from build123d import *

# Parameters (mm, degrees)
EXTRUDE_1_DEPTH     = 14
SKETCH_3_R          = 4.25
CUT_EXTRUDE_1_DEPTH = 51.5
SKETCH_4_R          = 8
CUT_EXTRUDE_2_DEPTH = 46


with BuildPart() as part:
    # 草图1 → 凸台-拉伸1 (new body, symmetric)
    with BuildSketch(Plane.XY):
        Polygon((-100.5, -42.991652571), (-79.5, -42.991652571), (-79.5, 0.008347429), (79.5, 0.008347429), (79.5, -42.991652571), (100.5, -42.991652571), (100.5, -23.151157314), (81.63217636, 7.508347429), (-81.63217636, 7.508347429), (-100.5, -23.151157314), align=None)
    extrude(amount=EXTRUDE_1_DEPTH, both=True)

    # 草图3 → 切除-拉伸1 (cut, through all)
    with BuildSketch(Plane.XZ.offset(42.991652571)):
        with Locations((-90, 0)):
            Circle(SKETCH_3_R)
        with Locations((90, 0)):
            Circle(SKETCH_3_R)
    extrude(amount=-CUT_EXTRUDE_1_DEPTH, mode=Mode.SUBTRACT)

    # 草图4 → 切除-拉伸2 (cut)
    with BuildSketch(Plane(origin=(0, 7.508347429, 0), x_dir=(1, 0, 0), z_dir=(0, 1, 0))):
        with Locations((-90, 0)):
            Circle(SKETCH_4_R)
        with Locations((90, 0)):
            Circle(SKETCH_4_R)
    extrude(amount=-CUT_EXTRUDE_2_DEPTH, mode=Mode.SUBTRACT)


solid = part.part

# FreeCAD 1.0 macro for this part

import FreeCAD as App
import Part
import Sketcher
from FreeCAD import Vector
Q = App.Units.Quantity

doc = App.newDocument("Part")
params = doc.addObject("Spreadsheet::Sheet", "Params")
for row, (alias, value) in enumerate([
    ("sketch1_width", "21 mm"),
    ("sketch1_width2", "159 mm"),
    ("sketch1_height", "43 mm"),
    ("sketch1_length", "36 mm"),
    ("pad1_length", "28 mm"),
    ("sketch2_diameter", "8.5 mm"),
    ("sketch3_diameter", "16 mm"),
    ("pocket2_length", "46 mm"),
], start=1):
    params.set(f"A{row}", alias)
    params.set(f"B{row}", "=" + value)
    params.setAlias(f"B{row}", alias)

body = doc.addObject("PartDesign::Body", "Body")

# Sketch on XY plane
sketch1 = body.newObject("Sketcher::SketchObject", "Sketch")
sketch1.AttachmentSupport = (doc.getObject("XY_Plane"), [""])
sketch1.MapMode = "FlatFace"
sketch1.addGeometry([
    Part.LineSegment(Vector(-100.5, -42.991653, 0), Vector(-79.5, -42.991653, 0)),  # 0
    Part.LineSegment(Vector(-79.5, -42.991653, 0), Vector(-79.5, 0.008347, 0)),  # 1
    Part.LineSegment(Vector(-79.5, 0.008347, 0), Vector(79.5, 0.008347, 0)),  # 2
    Part.LineSegment(Vector(79.5, 0.008347, 0), Vector(79.5, -42.991653, 0)),  # 3
    Part.LineSegment(Vector(79.5, -42.991653, 0), Vector(100.5, -42.991653, 0)),  # 4
    Part.LineSegment(Vector(100.5, -42.991653, 0), Vector(100.5, -23.151157, 0)),  # 5
    Part.LineSegment(Vector(100.5, -23.151157, 0), Vector(81.632176, 7.508347, 0)),  # 6
    Part.LineSegment(Vector(81.632176, 7.508347, 0), Vector(-81.632176, 7.508347, 0)),  # 7
    Part.LineSegment(Vector(-81.632176, 7.508347, 0), Vector(-100.5, -23.151157, 0)),  # 8
    Part.LineSegment(Vector(-100.5, -23.151157, 0), Vector(-100.5, -42.991653, 0)),  # 9
], False)
sketch1.addConstraint([
    Sketcher.Constraint("Coincident", 0, 2, 1, 1),
    Sketcher.Constraint("Coincident", 1, 2, 2, 1),
    Sketcher.Constraint("Coincident", 2, 2, 3, 1),
    Sketcher.Constraint("Coincident", 3, 2, 4, 1),
    Sketcher.Constraint("Coincident", 4, 2, 5, 1),
    Sketcher.Constraint("Coincident", 5, 2, 6, 1),
    Sketcher.Constraint("Coincident", 6, 2, 7, 1),
    Sketcher.Constraint("Coincident", 7, 2, 8, 1),
    Sketcher.Constraint("Coincident", 8, 2, 9, 1),
    Sketcher.Constraint("Coincident", 9, 2, 0, 1),
    Sketcher.Constraint("Horizontal", 0),
    Sketcher.Constraint("Vertical", 1),
    Sketcher.Constraint("Horizontal", 2),
    Sketcher.Constraint("Vertical", 3),
    Sketcher.Constraint("Horizontal", 4),
    Sketcher.Constraint("Vertical", 5),
    Sketcher.Constraint("Horizontal", 7),
    Sketcher.Constraint("Vertical", 9),
    Sketcher.Constraint("Symmetric", 0, 2, 3, 2, -2),
    Sketcher.Constraint("Symmetric", 5, 2, 8, 2, -2),
    Sketcher.Constraint("Equal", 6, 8),
    Sketcher.Constraint("DistanceX", 0, 1, 0, 2, Q("21 mm")),
    Sketcher.Constraint("DistanceX", 2, 1, 2, 2, Q("159 mm")),
    Sketcher.Constraint("DistanceY", 1, 1, 1, 2, Q("43 mm")),
    Sketcher.Constraint("Distance", 6, Q("36 mm")),
    Sketcher.Constraint("DistanceY", 2, 2, 6, 2, Q("7.5 mm")),
    Sketcher.Constraint("DistanceX", 7, 2, 7, 1, Q("163.264353 mm")),
    Sketcher.Constraint("DistanceY", 0, 2, -1, 1, Q("42.991653 mm")),
])
sketch1.setExpression("Constraints[21]", "Params.sketch1_width")
sketch1.setExpression("Constraints[22]", "Params.sketch1_width2")
sketch1.setExpression("Constraints[23]", "Params.sketch1_height")
sketch1.setExpression("Constraints[24]", "Params.sketch1_length")
pad1 = body.newObject("PartDesign::Pad", "Pad")
pad1.Profile = sketch1
pad1.setExpression("Length", "Params.pad1_length")
pad1.Midplane = True

# Sketch on XZ plane
sketch2 = body.newObject("Sketcher::SketchObject", "Sketch001")
sketch2.AttachmentSupport = (doc.getObject("XZ_Plane"), [""])
sketch2.MapMode = "FlatFace"
sketch2.AttachmentOffset = App.Placement(Vector(0, 0, 42.991653), App.Rotation())
sketch2.addGeometry([
    Part.Circle(Vector(-90, 0, 0), Vector(0, 0, 1), 4.25),
    Part.Circle(Vector(90, 0, 0), Vector(0, 0, 1), 4.25),
], False)
sketch2.addConstraint([
    Sketcher.Constraint("Equal", 0, 1),
    Sketcher.Constraint("Symmetric", 0, 3, 1, 3, -1, 1),
    Sketcher.Constraint("PointOnObject", 0, 3, -1),
    Sketcher.Constraint("Diameter", 0, Q("8.5 mm")),
    Sketcher.Constraint("DistanceX", 0, 3, -1, 1, Q("90 mm")),
])
sketch2.setExpression("Constraints[3]", "Params.sketch2_diameter")
pocket1 = body.newObject("PartDesign::Pocket", "Pocket")
pocket1.Profile = sketch2
pocket1.Type = "ThroughAll"

# Sketch on XZ plane
sketch3 = body.newObject("Sketcher::SketchObject", "Sketch002")
sketch3.AttachmentSupport = (doc.getObject("XZ_Plane"), [""])
sketch3.MapMode = "FlatFace"
sketch3.AttachmentOffset = App.Placement(Vector(0, 0, -7.508347), App.Rotation())
sketch3.addGeometry([
    Part.Circle(Vector(-90, 0, 0), Vector(0, 0, 1), 8),
    Part.Circle(Vector(90, 0, 0), Vector(0, 0, 1), 8),
], False)
sketch3.addConstraint([
    Sketcher.Constraint("Equal", 0, 1),
    Sketcher.Constraint("Symmetric", 0, 3, 1, 3, -1, 1),
    Sketcher.Constraint("PointOnObject", 0, 3, -1),
    Sketcher.Constraint("Diameter", 0, Q("16 mm")),
    Sketcher.Constraint("DistanceX", 0, 3, -1, 1, Q("90 mm")),
])
sketch3.setExpression("Constraints[3]", "Params.sketch3_diameter")
pocket2 = body.newObject("PartDesign::Pocket", "Pocket001")
pocket2.Profile = sketch3
pocket2.setExpression("Length", "Params.pocket2_length")
pocket2.Reversed = True

doc.recompute()
